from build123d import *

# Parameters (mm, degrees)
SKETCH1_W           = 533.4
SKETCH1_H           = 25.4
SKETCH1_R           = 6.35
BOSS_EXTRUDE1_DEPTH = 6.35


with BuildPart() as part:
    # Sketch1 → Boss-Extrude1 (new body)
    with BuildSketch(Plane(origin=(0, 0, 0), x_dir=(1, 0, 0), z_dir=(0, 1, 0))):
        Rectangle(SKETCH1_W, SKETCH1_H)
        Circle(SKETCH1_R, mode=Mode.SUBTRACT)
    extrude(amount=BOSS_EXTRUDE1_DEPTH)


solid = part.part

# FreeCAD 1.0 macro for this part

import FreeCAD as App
import Part
import Sketcher

V = App.Vector
Q = App.Units.Quantity


def add_polygon(sketch, points):
    """Adds a closed chain of lines whose ends are joined by coincident constraints."""
    first, n = sketch.GeometryCount, len(points)
    for a, b in zip(points, points[1:] + points[:1]):
        sketch.addGeometry(Part.LineSegment(App.Vector(*a, 0), App.Vector(*b, 0)), False)
    for i in range(n):
        sketch.addConstraint(Sketcher.Constraint("Coincident", first + i, 2, first + (i + 1) % n, 1))

doc = App.newDocument("Part")
body = doc.addObject("PartDesign::Body", "Body")

# Sketch on XZ plane
sketch1 = body.newObject("Sketcher::SketchObject", "Sketch")
sketch1.AttachmentSupport = (doc.getObject("XZ_Plane"), [""])
sketch1.MapMode = "FlatFace"
add_polygon(sketch1, [(-266.7, -12.7), (-266.7, 12.7), (266.7, 12.7), (266.7, -12.7)])  # lines 0-3
sketch1.addGeometry(Part.Circle(V(0, 0, 0), V(0, 0, 1), 6.35), False)  # 4
sketch1.addConstraint([
    Sketcher.Constraint("Vertical", 0),
    Sketcher.Constraint("Horizontal", 1),
    Sketcher.Constraint("Vertical", 2),
    Sketcher.Constraint("Horizontal", 3),
    Sketcher.Constraint("Coincident", 4, 3, -1, 1),
    Sketcher.Constraint("Symmetric", 0, 2, 2, 2, -1, 1),
    Sketcher.Constraint("Diameter", 4, Q("0.5 in")),
    Sketcher.Constraint("DistanceX", 1, 1, 1, 2, Q("21 in")),
    Sketcher.Constraint("DistanceY", 0, 1, 0, 2, Q("1 in")),
])
pad1 = body.newObject("PartDesign::Pad", "Pad")
pad1.Profile = sketch1
pad1.Length = Q("0.25 in")
pad1.Reversed = True

doc.recompute()
